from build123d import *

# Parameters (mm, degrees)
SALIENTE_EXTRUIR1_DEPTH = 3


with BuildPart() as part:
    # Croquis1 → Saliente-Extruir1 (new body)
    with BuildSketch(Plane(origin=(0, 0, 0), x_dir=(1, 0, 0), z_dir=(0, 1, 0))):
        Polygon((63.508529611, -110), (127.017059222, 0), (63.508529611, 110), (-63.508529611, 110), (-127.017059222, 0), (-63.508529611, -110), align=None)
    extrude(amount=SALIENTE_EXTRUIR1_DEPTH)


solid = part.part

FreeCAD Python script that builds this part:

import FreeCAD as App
import Part
import Sketcher
Q = App.Units.Quantity

doc = App.newDocument("Part")
params = doc.addObject("Spreadsheet::Sheet", "Params")
for row, (alias, value) in enumerate([
    ("pad1_length", "3 mm"),
], start=1):
    params.set(f"A{row}", alias)
    params.set(f"B{row}", "=" + value)
    params.setAlias(f"B{row}", alias)

body = doc.addObject("PartDesign::Body", "Body")

sketch1 = body.newObject("Sketcher::SketchObject", "Sketch")
sketch1.AttachmentSupport = (doc.getObject("XZ_Plane"), [""])
sketch1.MapMode = "FlatFace"
sketch1.addGeometry(Part.LineSegment(App.Vector(64, 110, 0), App.Vector(127, 0, 0)), False)
sketch1.addGeometry(Part.LineSegment(App.Vector(127, 0, 0), App.Vector(64, -110, 0)), False)
sketch1.addGeometry(Part.LineSegment(App.Vector(64, -110, 0), App.Vector(-64, -110, 0)), False)
sketch1.addGeometry(Part.LineSegment(App.Vector(-64, -110, 0), App.Vector(-127, 0, 0)), False)
sketch1.addGeometry(Part.LineSegment(App.Vector(-127, 0, 0), App.Vector(-64, 110, 0)), False)
sketch1.addGeometry(Part.LineSegment(App.Vector(-64, 110, 0), App.Vector(64, 110, 0)), False)
sketch1.addConstraint(Sketcher.Constraint("Coincident", 0, 2, 1, 1))
sketch1.addConstraint(Sketcher.Constraint("Coincident", 1, 2, 2, 1))
sketch1.addConstraint(Sketcher.Constraint("Coincident", 2, 2, 3, 1))
sketch1.addConstraint(Sketcher.Constraint("Coincident", 3, 2, 4, 1))
sketch1.addConstraint(Sketcher.Constraint("Coincident", 4, 2, 5, 1))
sketch1.addConstraint(Sketcher.Constraint("Coincident", 5, 2, 0, 1))
sketch1.addConstraint(Sketcher.Constraint("Horizontal", 2))
sketch1.addConstraint(Sketcher.Constraint("Horizontal", 5))
sketch1.addConstraint(Sketcher.Constraint("Symmetric", 0, 2, 3, 2, -1, 1))
sketch1.addConstraint(Sketcher.Constraint("Symmetric", 1, 2, 4, 2, -1, 1))
sketch1.addConstraint(Sketcher.Constraint("PointOnObject", 0, 2, -1))
sketch1.addConstraint(Sketcher.Constraint("Parallel", 0, 3))
sketch1.addConstraint(Sketcher.Constraint("Vertical", 2, 2, 4, 2))
sketch1.addConstraint(Sketcher.Constraint("Angle", 0, Q("-60 deg")))
sketch1.addConstraint(Sketcher.Constraint("DistanceY", 1, 2, -1, 1, 110.0))
sketch1.addConstraint(Sketcher.Constraint("DistanceX", 2, 2, 2, 1, 127.017059))
pad1 = body.newObject("PartDesign::Pad", "Pad")
pad1.Profile = sketch1
pad1.setExpression("Length", "Params.pad1_length")
pad1.Reversed = True

doc.recompute()
